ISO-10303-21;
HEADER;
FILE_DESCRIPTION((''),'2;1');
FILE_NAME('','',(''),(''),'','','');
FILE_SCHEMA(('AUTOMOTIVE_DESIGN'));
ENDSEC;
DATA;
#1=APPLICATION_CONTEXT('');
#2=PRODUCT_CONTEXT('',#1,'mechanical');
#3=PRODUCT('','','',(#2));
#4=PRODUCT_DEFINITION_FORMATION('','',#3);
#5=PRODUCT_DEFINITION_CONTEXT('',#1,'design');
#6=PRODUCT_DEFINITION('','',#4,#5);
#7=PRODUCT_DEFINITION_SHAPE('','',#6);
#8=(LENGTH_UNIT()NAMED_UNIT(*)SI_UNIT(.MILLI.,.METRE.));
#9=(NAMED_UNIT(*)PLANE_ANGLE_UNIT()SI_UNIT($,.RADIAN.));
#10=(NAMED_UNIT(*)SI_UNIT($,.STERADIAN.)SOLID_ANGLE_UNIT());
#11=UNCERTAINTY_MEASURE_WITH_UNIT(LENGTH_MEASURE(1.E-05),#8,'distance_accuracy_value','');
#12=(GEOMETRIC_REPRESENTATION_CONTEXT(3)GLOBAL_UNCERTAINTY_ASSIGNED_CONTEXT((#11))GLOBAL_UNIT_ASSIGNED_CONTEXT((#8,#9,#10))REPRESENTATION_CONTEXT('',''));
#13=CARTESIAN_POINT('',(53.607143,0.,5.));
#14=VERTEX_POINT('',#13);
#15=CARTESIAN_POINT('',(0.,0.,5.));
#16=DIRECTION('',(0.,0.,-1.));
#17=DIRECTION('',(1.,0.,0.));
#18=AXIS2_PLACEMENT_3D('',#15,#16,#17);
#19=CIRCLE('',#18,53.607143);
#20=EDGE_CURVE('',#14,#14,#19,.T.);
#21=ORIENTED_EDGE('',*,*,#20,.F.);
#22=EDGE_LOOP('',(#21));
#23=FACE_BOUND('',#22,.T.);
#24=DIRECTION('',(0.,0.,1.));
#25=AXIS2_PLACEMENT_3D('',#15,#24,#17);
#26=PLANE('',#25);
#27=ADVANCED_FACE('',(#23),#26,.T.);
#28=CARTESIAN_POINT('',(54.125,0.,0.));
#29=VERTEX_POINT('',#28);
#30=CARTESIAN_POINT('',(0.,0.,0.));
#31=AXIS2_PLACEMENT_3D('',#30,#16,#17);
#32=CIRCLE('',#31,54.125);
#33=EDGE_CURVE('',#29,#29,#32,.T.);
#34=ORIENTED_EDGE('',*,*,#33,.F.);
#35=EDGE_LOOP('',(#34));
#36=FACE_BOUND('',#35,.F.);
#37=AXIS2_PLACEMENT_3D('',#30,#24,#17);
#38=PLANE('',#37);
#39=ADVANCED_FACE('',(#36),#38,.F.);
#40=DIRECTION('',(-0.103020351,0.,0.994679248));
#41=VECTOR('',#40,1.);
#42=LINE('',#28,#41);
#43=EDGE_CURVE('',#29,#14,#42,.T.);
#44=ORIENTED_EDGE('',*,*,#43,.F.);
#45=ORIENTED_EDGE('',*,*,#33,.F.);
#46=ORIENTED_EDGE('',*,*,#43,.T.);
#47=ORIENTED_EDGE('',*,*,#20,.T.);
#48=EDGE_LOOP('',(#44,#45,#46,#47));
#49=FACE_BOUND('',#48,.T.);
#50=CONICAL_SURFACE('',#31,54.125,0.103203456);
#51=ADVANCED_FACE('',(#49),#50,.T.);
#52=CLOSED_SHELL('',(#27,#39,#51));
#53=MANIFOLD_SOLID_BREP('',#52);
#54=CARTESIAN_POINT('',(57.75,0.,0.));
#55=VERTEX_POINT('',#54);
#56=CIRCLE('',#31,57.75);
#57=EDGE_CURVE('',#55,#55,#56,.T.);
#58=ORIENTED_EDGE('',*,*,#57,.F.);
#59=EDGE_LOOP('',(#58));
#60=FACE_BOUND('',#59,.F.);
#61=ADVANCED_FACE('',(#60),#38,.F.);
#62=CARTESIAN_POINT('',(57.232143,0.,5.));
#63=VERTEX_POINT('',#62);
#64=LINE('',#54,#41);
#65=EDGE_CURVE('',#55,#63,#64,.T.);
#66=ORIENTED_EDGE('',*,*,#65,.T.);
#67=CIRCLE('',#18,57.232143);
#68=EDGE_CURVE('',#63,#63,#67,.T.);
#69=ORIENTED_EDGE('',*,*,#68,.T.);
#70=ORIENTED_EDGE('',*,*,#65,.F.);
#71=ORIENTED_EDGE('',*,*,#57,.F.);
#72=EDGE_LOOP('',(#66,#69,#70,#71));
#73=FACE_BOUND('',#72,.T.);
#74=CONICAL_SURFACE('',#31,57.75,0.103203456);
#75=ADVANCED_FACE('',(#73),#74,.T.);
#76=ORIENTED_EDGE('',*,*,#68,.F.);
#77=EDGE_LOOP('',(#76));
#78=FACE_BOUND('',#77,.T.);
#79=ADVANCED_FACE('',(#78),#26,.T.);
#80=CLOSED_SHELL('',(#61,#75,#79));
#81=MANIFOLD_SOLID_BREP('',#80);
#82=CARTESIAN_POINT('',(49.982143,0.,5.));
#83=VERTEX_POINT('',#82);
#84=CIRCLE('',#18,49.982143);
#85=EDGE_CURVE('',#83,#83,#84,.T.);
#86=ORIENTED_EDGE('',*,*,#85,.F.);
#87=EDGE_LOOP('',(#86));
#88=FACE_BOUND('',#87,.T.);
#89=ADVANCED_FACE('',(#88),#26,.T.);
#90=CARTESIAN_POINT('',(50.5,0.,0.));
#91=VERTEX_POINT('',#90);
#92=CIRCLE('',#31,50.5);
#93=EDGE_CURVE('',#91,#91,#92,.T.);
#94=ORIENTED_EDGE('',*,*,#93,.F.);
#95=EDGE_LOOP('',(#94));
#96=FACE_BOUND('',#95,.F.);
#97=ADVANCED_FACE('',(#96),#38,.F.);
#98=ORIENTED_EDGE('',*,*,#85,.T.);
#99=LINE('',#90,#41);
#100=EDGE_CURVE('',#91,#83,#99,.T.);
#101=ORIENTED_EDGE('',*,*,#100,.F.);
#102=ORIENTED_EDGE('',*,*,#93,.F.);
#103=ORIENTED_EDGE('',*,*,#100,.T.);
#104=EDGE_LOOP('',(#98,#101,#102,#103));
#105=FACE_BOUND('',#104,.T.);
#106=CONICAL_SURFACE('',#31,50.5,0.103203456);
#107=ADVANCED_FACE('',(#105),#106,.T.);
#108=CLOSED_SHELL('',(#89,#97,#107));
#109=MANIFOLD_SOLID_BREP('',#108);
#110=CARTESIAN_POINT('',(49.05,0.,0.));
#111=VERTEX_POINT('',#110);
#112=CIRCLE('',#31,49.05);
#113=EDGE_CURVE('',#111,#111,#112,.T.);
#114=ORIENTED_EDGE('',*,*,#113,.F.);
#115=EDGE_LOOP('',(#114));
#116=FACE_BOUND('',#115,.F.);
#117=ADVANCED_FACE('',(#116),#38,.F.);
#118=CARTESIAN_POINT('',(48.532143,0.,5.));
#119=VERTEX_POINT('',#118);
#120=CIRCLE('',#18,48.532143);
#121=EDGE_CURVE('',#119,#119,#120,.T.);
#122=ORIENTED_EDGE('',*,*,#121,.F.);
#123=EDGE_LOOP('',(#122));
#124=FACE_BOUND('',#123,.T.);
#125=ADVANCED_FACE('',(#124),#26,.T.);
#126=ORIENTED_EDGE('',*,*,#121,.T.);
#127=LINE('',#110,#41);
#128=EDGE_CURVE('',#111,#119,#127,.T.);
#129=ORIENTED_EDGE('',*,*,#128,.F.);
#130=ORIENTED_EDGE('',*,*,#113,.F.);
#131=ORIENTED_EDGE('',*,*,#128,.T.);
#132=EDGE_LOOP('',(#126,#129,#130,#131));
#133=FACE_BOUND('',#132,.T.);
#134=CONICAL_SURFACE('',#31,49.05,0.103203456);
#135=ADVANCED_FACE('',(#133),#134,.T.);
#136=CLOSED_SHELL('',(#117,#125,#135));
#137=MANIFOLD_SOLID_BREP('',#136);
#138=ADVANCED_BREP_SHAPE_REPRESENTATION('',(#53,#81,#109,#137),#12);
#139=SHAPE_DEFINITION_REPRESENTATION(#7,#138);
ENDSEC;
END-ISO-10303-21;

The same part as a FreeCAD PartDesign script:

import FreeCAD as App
import Part
import Sketcher
from FreeCAD import Vector
Q = App.Units.Quantity

doc = App.newDocument("Part")
body = doc.addObject("PartDesign::Body", "Body")

sketch1 = body.newObject("Sketcher::SketchObject", "Sketch")
sketch1.AttachmentSupport = (doc.getObject("XY_Plane"), [""])
sketch1.MapMode = "FlatFace"
sketch1.addGeometry(Part.Circle(Vector(0, 0, 0), Vector(0, 0, 1), 58), False)
sketch1.addConstraint([
    Sketcher.Constraint("Coincident", 0, 3, -1, 1),
    Sketcher.Constraint("Diameter", 0, Q("115.5 mm")),
])
pad1 = body.newObject("PartDesign::Pad", "Pad")
pad1.Profile = sketch1
pad1.Length = 5
pad1.TaperAngle = -5.913122
body2 = doc.addObject("PartDesign::Body", "Body001")

sketch2 = body2.newObject("Sketcher::SketchObject", "Sketch001")
sketch2.AttachmentSupport = (doc.getObject("XY_Plane001"), [""])
sketch2.MapMode = "FlatFace"
sketch2.addGeometry(Part.Circle(Vector(0, 0, 0), Vector(0, 0, 1), 54), False)
sketch2.addConstraint([
    Sketcher.Constraint("Coincident", 0, 3, -1, 1),
    Sketcher.Constraint("Diameter", 0, Q("108.25 mm")),
])
pad2 = body2.newObject("PartDesign::Pad", "Pad001")
pad2.Profile = sketch2
pad2.Length = 5
pad2.TaperAngle = -5.913122
body3 = doc.addObject("PartDesign::Body", "Body002")

sketch3 = body3.newObject("Sketcher::SketchObject", "Sketch002")
sketch3.AttachmentSupport = (doc.getObject("XY_Plane002"), [""])
sketch3.MapMode = "FlatFace"
sketch3.addGeometry(Part.Circle(Vector(0, 0, 0), Vector(0, 0, 1), 50), False)
sketch3.addConstraint([
    Sketcher.Constraint("Coincident", 0, 3, -1, 1),
    Sketcher.Constraint("Diameter", 0, Q("101 mm")),
])
pad3 = body3.newObject("PartDesign::Pad", "Pad002")
pad3.Profile = sketch3
pad3.Length = 5
pad3.TaperAngle = -5.913122
body4 = doc.addObject("PartDesign::Body", "Body003")

sketch4 = body4.newObject("Sketcher::SketchObject", "Sketch003")
sketch4.AttachmentSupport = (doc.getObject("XY_Plane003"), [""])
sketch4.MapMode = "FlatFace"
sketch4.addGeometry(Part.Circle(Vector(0, 0, 0), Vector(0, 0, 1), 49), False)
sketch4.addConstraint([
    Sketcher.Constraint("Coincident", 0, 3, -1, 1),
    Sketcher.Constraint("Diameter", 0, Q("98.1 mm")),
])
pad4 = body4.newObject("PartDesign::Pad", "Pad003")
pad4.Profile = sketch4
pad4.Length = 5
pad4.TaperAngle = -5.913122

doc.recompute()
